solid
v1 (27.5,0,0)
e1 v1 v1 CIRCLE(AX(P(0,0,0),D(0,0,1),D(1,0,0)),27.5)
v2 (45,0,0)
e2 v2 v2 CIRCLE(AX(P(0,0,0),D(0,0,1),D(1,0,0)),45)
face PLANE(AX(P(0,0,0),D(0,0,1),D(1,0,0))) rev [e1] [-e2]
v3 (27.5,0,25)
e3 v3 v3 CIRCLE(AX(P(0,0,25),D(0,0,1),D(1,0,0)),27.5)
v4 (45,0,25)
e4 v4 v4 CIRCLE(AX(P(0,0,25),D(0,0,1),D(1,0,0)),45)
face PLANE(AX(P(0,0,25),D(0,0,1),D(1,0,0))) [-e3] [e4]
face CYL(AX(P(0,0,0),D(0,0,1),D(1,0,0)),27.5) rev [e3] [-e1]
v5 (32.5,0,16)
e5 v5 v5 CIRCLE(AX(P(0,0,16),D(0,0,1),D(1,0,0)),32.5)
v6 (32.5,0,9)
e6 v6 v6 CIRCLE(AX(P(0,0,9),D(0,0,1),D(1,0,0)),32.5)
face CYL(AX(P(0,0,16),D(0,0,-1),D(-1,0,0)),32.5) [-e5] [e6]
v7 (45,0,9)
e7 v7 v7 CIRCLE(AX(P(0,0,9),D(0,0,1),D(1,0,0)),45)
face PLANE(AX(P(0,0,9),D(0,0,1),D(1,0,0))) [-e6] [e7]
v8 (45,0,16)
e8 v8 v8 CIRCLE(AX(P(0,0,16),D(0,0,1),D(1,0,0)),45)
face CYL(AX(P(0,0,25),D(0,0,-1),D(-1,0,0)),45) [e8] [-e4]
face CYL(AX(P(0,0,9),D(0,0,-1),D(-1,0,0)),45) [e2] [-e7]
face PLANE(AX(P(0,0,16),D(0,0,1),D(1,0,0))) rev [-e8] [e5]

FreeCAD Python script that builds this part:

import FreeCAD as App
import Part
import Sketcher
from FreeCAD import Vector
Q = App.Units.Quantity

doc = App.newDocument("Part")
body = doc.addObject("PartDesign::Body", "Body")

# Sketch on XY plane
sketch1 = body.newObject("Sketcher::SketchObject", "Sketch")
sketch1.AttachmentSupport = (doc.getObject("XY_Plane"), [""])
sketch1.MapMode = "FlatFace"
sketch1.addGeometry(Part.Circle(Vector(0, 0, 0), Vector(0, 0, 1), 45), False)
sketch1.addConstraint([
    Sketcher.Constraint("Coincident", 0, 3, -1, 1),
    Sketcher.Constraint("Diameter", 0, Q("90 mm")),
])
pad1 = body.newObject("PartDesign::Pad", "Pad")
pad1.Profile = sketch1
pad1.Length = 9

# Sketch on XY plane
sketch2 = body.newObject("Sketcher::SketchObject", "Sketch001")
sketch2.AttachmentSupport = (doc.getObject("XY_Plane"), [""])
sketch2.MapMode = "FlatFace"
sketch2.AttachmentOffset = App.Placement(Vector(0, 0, 9), App.Rotation())
sketch2.addGeometry(Part.Circle(Vector(0, 0, 0), Vector(0, 0, 1), 32.5), False)
sketch2.addConstraint([
    Sketcher.Constraint("Coincident", 0, 3, -1, 1),
    Sketcher.Constraint("Diameter", 0, Q("65 mm")),
])
pad2 = body.newObject("PartDesign::Pad", "Pad001")
pad2.Profile = sketch2
pad2.Length = 7

# Sketch on XY plane
sketch3 = body.newObject("Sketcher::SketchObject", "Sketch002")
sketch3.AttachmentSupport = (doc.getObject("XY_Plane"), [""])
sketch3.MapMode = "FlatFace"
sketch3.AttachmentOffset = App.Placement(Vector(0, 0, 16), App.Rotation())
sketch3.addGeometry(Part.Circle(Vector(0, 0, 0), Vector(0, 0, 1), 45), False)
sketch3.addConstraint([
    Sketcher.Constraint("Coincident", 0, 3, -1, 1),
    Sketcher.Constraint("Diameter", 0, Q("90 mm")),
])
pad3 = body.newObject("PartDesign::Pad", "Pad002")
pad3.Profile = sketch3
pad3.Length = 9

# Sketch on XY plane
sketch4 = body.newObject("Sketcher::SketchObject", "Sketch003")
sketch4.AttachmentSupport = (doc.getObject("XY_Plane"), [""])
sketch4.MapMode = "FlatFace"
sketch4.AttachmentOffset = App.Placement(Vector(0, 0, 25), App.Rotation())
sketch4.addGeometry(Part.Circle(Vector(0, 0, 0), Vector(0, 0, 1), 27.5), False)
sketch4.addConstraint([
    Sketcher.Constraint("Coincident", 0, 3, -1, 1),
    Sketcher.Constraint("Diameter", 0, Q("55 mm")),
])
pocket1 = body.newObject("PartDesign::Pocket", "Pocket")
pocket1.Profile = sketch4
pocket1.Length = 25

doc.recompute()
